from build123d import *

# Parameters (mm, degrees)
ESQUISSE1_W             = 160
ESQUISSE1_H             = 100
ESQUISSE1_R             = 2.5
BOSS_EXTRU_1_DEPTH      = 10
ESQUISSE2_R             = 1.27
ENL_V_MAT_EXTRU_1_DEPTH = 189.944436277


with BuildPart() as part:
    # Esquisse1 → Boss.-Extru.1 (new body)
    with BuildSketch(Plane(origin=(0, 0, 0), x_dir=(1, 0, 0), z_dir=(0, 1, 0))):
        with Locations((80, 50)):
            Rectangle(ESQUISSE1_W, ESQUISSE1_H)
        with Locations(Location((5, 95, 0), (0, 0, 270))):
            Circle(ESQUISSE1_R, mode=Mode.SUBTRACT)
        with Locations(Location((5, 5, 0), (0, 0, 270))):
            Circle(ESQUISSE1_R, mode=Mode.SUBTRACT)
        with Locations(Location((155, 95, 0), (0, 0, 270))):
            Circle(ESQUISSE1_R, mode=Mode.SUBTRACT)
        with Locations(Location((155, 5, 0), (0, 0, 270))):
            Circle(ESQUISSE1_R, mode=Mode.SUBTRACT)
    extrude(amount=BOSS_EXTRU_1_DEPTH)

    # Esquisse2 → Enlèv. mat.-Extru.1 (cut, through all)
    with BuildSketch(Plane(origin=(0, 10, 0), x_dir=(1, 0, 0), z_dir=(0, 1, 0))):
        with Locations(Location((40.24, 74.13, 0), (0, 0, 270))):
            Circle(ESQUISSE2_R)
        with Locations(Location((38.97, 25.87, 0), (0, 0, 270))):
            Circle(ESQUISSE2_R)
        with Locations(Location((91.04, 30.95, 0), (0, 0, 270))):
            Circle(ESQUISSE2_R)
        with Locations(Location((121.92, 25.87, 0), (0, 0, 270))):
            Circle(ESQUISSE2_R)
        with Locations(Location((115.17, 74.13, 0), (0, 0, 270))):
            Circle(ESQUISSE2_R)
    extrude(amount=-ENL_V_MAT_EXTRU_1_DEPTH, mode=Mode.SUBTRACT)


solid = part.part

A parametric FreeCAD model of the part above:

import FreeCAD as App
import Part
import Sketcher

V = App.Vector

doc = App.newDocument("Part")
body = doc.addObject("PartDesign::Body", "Body")

sketch1 = body.newObject("Sketcher::SketchObject", "Sketch")
sketch1.AttachmentSupport = (doc.getObject("XZ_Plane"), [""])
sketch1.MapMode = "FlatFace"
sketch1.addGeometry(Part.LineSegment(V(0, -100, 0), V(0, 0, 0)), False)
sketch1.addGeometry(Part.LineSegment(V(0, 0, 0), V(160, 0, 0)), False)
sketch1.addGeometry(Part.LineSegment(V(160, 0, 0), V(160, -100, 0)), False)
sketch1.addGeometry(Part.LineSegment(V(160, -100, 0), V(0, -100, 0)), False)
sketch1.addGeometry(Part.Circle(V(5, -5, 0), V(0, 0, 1), 2.5), False)
sketch1.addGeometry(Part.Circle(V(155, -5, 0), V(0, 0, 1), 2.5), False)
sketch1.addGeometry(Part.Circle(V(5, -95, 0), V(0, 0, 1), 2.5), False)
sketch1.addGeometry(Part.Circle(V(155, -95, 0), V(0, 0, 1), 2.5), False)
sketch1.addConstraint(Sketcher.Constraint("Coincident", 0, 2, 1, 1))
sketch1.addConstraint(Sketcher.Constraint("Coincident", 1, 2, 2, 1))
sketch1.addConstraint(Sketcher.Constraint("Coincident", 2, 2, 3, 1))
sketch1.addConstraint(Sketcher.Constraint("Coincident", 3, 2, 0, 1))
sketch1.addConstraint(Sketcher.Constraint("Vertical", 0))
sketch1.addConstraint(Sketcher.Constraint("Horizontal", 1))
sketch1.addConstraint(Sketcher.Constraint("Vertical", 2))
sketch1.addConstraint(Sketcher.Constraint("Horizontal", 3))
sketch1.addConstraint(Sketcher.Constraint("Coincident", 0, 2, -1, 1))
sketch1.addConstraint(Sketcher.Constraint("Equal", 4, 5))
sketch1.addConstraint(Sketcher.Constraint("Equal", 5, 6))
sketch1.addConstraint(Sketcher.Constraint("Equal", 6, 7))
sketch1.addConstraint(Sketcher.Constraint("Horizontal", 4, 3, 5, 3))
sketch1.addConstraint(Sketcher.Constraint("Horizontal", 6, 3, 7, 3))
sketch1.addConstraint(Sketcher.Constraint("Vertical", 4, 3, 6, 3))
sketch1.addConstraint(Sketcher.Constraint("Vertical", 5, 3, 7, 3))
sketch1.addConstraint(Sketcher.Constraint("Diameter", 4, 5.0))
sketch1.addConstraint(Sketcher.Constraint("DistanceX", 1, 1, 1, 2, 160.0))
sketch1.addConstraint(Sketcher.Constraint("DistanceY", 0, 1, 0, 2, 100.0))
sketch1.addConstraint(Sketcher.Constraint("DistanceX", -1, 1, 4, 3, 5.0))
sketch1.addConstraint(Sketcher.Constraint("DistanceY", 4, 3, -1, 1, 5.0))
sketch1.addConstraint(Sketcher.Constraint("DistanceX", -1, 1, 5, 3, 155.0))
sketch1.addConstraint(Sketcher.Constraint("DistanceY", 6, 3, -1, 1, 95.0))
pad1 = body.newObject("PartDesign::Pad", "Pad")
pad1.Profile = sketch1
pad1.Length = 10
pad1.Reversed = True

sketch2 = body.newObject("Sketcher::SketchObject", "Sketch001")
sketch2.AttachmentSupport = (doc.getObject("XZ_Plane"), [""])
sketch2.MapMode = "FlatFace"
sketch2.AttachmentOffset = App.Placement(V(0, 0, -10), App.Rotation())
sketch2.addGeometry(Part.Circle(V(40.2, -74.1, 0), V(0, 0, 1), 1.3), False)
sketch2.addGeometry(Part.Circle(V(39, -25.9, 0), V(0, 0, 1), 1.3), False)
sketch2.addGeometry(Part.Circle(V(91, -30.9, 0), V(0, 0, 1), 1.3), False)
sketch2.addGeometry(Part.Circle(V(121.9, -25.9, 0), V(0, 0, 1), 1.3), False)
sketch2.addGeometry(Part.Circle(V(115.2, -74.1, 0), V(0, 0, 1), 1.3), False)
sketch2.addConstraint(Sketcher.Constraint("Equal", 0, 1))
sketch2.addConstraint(Sketcher.Constraint("Equal", 1, 2))
sketch2.addConstraint(Sketcher.Constraint("Equal", 2, 3))
sketch2.addConstraint(Sketcher.Constraint("Equal", 3, 4))
sketch2.addConstraint(Sketcher.Constraint("Horizontal", 1, 3, 3, 3))
sketch2.addConstraint(Sketcher.Constraint("Horizontal", 0, 3, 4, 3))
sketch2.addConstraint(Sketcher.Constraint("Diameter", 0, 2.54))
sketch2.addConstraint(Sketcher.Constraint("DistanceX", 0, 3, 2, 3, 50.8))
sketch2.addConstraint(Sketcher.Constraint("DistanceX", 1, 3, 4, 3, 76.2))
sketch2.addConstraint(Sketcher.Constraint("DistanceX", -1, 1, 0, 3, 40.24))
sketch2.addConstraint(Sketcher.Constraint("DistanceY", 0, 3, -1, 1, 74.13))
sketch2.addConstraint(Sketcher.Constraint("DistanceX", -1, 1, 1, 3, 38.97))
sketch2.addConstraint(Sketcher.Constraint("DistanceY", 1, 3, -1, 1, 25.87))
sketch2.addConstraint(Sketcher.Constraint("DistanceY", 2, 3, -1, 1, 30.95))
sketch2.addConstraint(Sketcher.Constraint("DistanceX", -1, 1, 3, 3, 121.92))
pocket1 = body.newObject("PartDesign::Pocket", "Pocket")
pocket1.Profile = sketch2
pocket1.Type = "ThroughAll"
pocket1.Reversed = True

doc.recompute()
